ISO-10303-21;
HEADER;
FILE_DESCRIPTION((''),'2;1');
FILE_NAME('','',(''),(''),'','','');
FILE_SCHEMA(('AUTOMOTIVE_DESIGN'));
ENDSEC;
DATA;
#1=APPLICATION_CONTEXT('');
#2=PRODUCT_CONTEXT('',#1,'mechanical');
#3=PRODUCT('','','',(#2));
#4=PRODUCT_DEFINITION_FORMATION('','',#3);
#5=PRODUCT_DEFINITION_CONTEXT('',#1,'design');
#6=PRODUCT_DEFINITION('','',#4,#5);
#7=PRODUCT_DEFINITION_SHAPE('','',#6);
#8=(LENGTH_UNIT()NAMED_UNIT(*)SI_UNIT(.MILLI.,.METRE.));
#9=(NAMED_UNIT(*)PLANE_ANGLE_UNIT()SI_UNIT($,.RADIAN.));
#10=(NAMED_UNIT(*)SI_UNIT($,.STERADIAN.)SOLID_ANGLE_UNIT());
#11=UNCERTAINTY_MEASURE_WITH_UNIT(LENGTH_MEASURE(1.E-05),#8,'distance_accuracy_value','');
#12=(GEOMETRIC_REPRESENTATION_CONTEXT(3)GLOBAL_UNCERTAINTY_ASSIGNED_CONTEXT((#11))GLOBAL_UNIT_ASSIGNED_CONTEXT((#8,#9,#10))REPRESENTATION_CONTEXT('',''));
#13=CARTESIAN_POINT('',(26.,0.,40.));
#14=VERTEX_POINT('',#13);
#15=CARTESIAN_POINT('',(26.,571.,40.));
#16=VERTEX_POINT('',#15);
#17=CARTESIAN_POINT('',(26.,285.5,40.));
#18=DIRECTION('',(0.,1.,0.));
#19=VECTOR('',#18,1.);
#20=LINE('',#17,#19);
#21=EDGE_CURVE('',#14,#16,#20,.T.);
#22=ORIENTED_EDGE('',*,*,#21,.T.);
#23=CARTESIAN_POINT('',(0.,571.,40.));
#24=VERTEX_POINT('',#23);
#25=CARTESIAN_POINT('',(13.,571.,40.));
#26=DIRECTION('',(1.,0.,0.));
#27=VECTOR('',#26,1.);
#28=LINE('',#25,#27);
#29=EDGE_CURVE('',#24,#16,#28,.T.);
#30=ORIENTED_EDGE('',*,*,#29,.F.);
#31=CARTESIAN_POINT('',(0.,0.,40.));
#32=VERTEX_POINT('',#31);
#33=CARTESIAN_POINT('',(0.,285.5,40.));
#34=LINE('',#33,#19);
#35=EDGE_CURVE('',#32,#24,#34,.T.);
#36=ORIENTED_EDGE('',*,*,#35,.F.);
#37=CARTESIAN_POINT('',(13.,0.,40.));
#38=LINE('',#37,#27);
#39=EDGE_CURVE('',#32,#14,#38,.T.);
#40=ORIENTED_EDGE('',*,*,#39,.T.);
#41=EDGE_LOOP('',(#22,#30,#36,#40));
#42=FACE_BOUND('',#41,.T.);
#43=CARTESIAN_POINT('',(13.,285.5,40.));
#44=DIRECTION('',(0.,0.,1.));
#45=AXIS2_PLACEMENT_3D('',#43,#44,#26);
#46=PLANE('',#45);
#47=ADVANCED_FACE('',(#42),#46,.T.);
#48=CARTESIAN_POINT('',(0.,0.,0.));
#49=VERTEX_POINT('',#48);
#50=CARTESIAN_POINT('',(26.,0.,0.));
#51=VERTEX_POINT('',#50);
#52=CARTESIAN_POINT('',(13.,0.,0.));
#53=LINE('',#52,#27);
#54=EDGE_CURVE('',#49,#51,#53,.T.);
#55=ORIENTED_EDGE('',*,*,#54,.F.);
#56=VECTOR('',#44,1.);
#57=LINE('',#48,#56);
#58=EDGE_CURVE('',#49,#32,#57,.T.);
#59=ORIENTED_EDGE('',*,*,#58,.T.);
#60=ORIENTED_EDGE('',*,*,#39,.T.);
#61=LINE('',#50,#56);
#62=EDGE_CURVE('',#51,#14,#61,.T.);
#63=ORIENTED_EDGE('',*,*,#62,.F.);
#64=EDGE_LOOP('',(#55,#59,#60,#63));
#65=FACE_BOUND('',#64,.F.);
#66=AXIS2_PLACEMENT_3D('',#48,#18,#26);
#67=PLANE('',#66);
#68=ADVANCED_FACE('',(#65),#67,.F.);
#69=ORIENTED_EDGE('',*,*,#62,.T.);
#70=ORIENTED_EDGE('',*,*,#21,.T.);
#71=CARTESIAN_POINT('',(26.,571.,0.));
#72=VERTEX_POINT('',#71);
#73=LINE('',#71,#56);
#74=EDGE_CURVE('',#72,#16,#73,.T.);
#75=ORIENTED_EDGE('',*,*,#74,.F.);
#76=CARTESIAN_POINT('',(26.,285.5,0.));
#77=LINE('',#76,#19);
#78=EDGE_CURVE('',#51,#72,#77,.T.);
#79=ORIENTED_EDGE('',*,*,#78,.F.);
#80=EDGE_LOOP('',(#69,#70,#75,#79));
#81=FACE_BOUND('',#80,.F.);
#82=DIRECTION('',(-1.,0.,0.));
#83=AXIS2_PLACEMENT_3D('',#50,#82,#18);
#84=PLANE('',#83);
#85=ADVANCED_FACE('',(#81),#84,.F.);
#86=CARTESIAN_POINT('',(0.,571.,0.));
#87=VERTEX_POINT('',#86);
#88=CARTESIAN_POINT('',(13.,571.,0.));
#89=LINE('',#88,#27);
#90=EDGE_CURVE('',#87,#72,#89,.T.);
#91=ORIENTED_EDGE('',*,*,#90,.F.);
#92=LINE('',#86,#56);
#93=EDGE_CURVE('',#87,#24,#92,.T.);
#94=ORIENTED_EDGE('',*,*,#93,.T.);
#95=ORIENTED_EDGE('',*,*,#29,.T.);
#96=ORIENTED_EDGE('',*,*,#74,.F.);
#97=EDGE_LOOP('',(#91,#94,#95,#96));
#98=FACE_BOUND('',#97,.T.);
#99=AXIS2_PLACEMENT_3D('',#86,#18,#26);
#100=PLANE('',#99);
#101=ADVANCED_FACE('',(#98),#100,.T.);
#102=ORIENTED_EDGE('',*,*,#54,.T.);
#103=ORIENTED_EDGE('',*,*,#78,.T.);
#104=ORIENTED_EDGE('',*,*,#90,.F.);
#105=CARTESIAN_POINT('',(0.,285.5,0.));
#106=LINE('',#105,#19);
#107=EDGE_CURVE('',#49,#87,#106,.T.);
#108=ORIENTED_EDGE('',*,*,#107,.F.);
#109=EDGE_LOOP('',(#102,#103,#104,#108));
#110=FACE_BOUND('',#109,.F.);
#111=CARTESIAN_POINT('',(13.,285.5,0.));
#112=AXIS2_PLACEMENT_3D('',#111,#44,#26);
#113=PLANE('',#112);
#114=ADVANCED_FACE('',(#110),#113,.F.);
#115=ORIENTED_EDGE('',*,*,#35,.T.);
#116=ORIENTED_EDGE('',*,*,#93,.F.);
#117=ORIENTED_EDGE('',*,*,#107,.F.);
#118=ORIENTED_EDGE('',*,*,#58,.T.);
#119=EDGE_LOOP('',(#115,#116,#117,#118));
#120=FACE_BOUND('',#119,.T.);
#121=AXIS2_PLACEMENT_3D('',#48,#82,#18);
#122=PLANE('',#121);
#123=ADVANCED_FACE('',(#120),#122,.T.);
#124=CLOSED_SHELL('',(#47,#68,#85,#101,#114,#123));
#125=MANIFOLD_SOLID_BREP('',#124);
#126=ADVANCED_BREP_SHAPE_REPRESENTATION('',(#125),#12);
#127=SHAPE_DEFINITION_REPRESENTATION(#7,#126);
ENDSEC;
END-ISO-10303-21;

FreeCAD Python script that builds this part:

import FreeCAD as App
import Part
import Sketcher
from FreeCAD import Vector
Q = App.Units.Quantity

doc = App.newDocument("Part")
body = doc.addObject("PartDesign::Body", "Body")

# Sketch on XY plane
sketch1 = body.newObject("Sketcher::SketchObject", "Sketch")
sketch1.AttachmentSupport = (doc.getObject("XY_Plane"), [""])
sketch1.MapMode = "FlatFace"
sketch1.addGeometry([
    Part.LineSegment(Vector(0, 571, 0), Vector(0, 0, 0)),
    Part.LineSegment(Vector(0, 0, 0), Vector(26, 0, 0)),
    Part.LineSegment(Vector(26, 0, 0), Vector(26, 571, 0)),
    Part.LineSegment(Vector(26, 571, 0), Vector(0, 571, 0)),
], False)
sketch1.addConstraint([
    Sketcher.Constraint("Coincident", 0, 2, 1, 1),
    Sketcher.Constraint("Coincident", 1, 2, 2, 1),
    Sketcher.Constraint("Coincident", 2, 2, 3, 1),
    Sketcher.Constraint("Coincident", 3, 2, 0, 1),
    Sketcher.Constraint("Vertical", 0),
    Sketcher.Constraint("Horizontal", 1),
    Sketcher.Constraint("Vertical", 2),
    Sketcher.Constraint("Horizontal", 3),
    Sketcher.Constraint("Coincident", 0, 2, -1, 1),
    Sketcher.Constraint("DistanceX", 1, 1, 1, 2, Q("26 mm")),
    Sketcher.Constraint("DistanceY", 0, 2, 0, 1, Q("571 mm")),
])
pad1 = body.newObject("PartDesign::Pad", "Pad")
pad1.Profile = sketch1
pad1.Length = 40

doc.recompute()
